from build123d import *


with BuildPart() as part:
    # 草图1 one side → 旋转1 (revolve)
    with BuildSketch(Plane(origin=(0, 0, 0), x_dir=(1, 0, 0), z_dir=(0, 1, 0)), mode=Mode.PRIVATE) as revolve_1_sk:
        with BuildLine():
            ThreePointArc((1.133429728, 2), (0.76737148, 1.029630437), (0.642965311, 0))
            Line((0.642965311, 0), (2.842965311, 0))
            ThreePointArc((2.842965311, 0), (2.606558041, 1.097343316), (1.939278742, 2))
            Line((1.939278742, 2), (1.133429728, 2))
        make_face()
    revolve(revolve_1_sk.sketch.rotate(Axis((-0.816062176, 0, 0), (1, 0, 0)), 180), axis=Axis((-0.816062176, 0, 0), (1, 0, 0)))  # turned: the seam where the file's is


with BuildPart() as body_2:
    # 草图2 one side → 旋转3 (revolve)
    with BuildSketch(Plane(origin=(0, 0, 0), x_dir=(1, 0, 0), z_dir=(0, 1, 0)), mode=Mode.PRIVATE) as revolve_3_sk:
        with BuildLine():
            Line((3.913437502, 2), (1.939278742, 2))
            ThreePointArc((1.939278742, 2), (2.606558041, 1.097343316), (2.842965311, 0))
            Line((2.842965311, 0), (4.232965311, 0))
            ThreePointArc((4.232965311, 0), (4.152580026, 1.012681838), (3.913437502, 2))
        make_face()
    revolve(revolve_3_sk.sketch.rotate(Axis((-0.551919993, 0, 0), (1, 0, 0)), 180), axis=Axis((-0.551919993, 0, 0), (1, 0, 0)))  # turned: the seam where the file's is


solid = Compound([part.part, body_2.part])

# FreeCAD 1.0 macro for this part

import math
import FreeCAD as App
import Part
import Sketcher
Q = App.Units.Quantity

doc = App.newDocument("Part")
body = doc.addObject("PartDesign::Body", "Body")

sketch1 = body.newObject("Sketcher::SketchObject", "Sketch")
sketch1.AttachmentSupport = (doc.getObject("XZ_Plane"), [""])
sketch1.MapMode = "FlatFace"
sketch1.addGeometry([
    Part.ArcOfCircle(Part.Circle(App.Vector(5, 0, 0), App.Vector(0, 0, 1), 4.3), math.radians(-180), math.radians(-152)),
    Part.LineSegment(App.Vector(0.6, 0, 0), App.Vector(2.8, 0, 0)),
    Part.ArcOfCircle(Part.Circle(App.Vector(0.2, 0, 0), App.Vector(0, 0, 1), 2.7), math.radians(-49), math.radians(0)),
    Part.LineSegment(App.Vector(1.9, -2, 0), App.Vector(1.1, -2, 0)),
], False)
sketch1.addConstraint([
    Sketcher.Constraint("Coincident", 0, 1, 1, 1),
    Sketcher.Constraint("Coincident", 1, 2, 2, 2),
    Sketcher.Constraint("Coincident", 2, 1, 3, 1),
    Sketcher.Constraint("Coincident", 3, 2, 0, 2),
    Sketcher.Constraint("Horizontal", 1),
    Sketcher.Constraint("Horizontal", 3),
    Sketcher.Constraint("PointOnObject", 0, 3, -1),
    Sketcher.Constraint("PointOnObject", 2, 3, -1),
    Sketcher.Constraint("PointOnObject", 0, 1, -1),
    Sketcher.Constraint("DistanceX", 1, 1, 1, 2, Q("2.2 mm")),
    Sketcher.Constraint("DistanceY", 2, 1, -1, 1, Q("2 mm")),
    Sketcher.Constraint("Radius", 0, Q("4.323 mm")),
    Sketcher.Constraint("Radius", 2, Q("2.665 mm")),
    Sketcher.Constraint("DistanceX", -1, 1, 2, 1, Q("1.939279 mm")),
])
revolution = body.newObject("PartDesign::Revolution", "Revolution")
revolution.Profile = sketch1
revolution.ReferenceAxis = (sketch1, ["H_Axis"])
revolution.Angle = 360
body2 = doc.addObject("PartDesign::Body", "Body001")

sketch2 = body2.newObject("Sketcher::SketchObject", "Sketch001")
sketch2.AttachmentSupport = (doc.getObject("XZ_Plane001"), [""])
sketch2.MapMode = "FlatFace"
sketch2.addGeometry([
    Part.LineSegment(App.Vector(3.9, -2, 0), App.Vector(1.9, -2, 0)),
    Part.ArcOfCircle(Part.Circle(App.Vector(0.2, 0, 0), App.Vector(0, 0, 1), 2.7), math.radians(-49), math.radians(0)),
    Part.LineSegment(App.Vector(2.8, 0, 0), App.Vector(4.2, 0, 0)),
    Part.ArcOfCircle(Part.Circle(App.Vector(-2.2, 0, 0), App.Vector(0, 0, 1), 6.4), math.radians(-18.15), math.radians(0)),
], False)
sketch2.addConstraint([
    Sketcher.Constraint("Coincident", 0, 2, 1, 1),
    Sketcher.Constraint("Coincident", 1, 2, 2, 1),
    Sketcher.Constraint("Coincident", 2, 2, 3, 2),
    Sketcher.Constraint("Coincident", 3, 1, 0, 1),
    Sketcher.Constraint("Horizontal", 0),
    Sketcher.Constraint("Horizontal", 2),
    Sketcher.Constraint("PointOnObject", 1, 3, -1),
    Sketcher.Constraint("PointOnObject", 3, 3, -1),
    Sketcher.Constraint("PointOnObject", 1, 2, -1),
    Sketcher.Constraint("DistanceY", 0, 2, -1, 1, Q("2 mm")),
    Sketcher.Constraint("Radius", 1, Q("2.665 mm")),
    Sketcher.Constraint("Radius", 3, Q("6.419 mm")),
    Sketcher.Constraint("DistanceX", 2, 1, 2, 2, Q("1.39 mm")),
    Sketcher.Constraint("DistanceX", -1, 1, 0, 2, Q("1.939279 mm")),
])
revolution2 = body2.newObject("PartDesign::Revolution", "Revolution001")
revolution2.Profile = sketch2
revolution2.ReferenceAxis = (sketch2, ["H_Axis"])
revolution2.Angle = 360

doc.recompute()
